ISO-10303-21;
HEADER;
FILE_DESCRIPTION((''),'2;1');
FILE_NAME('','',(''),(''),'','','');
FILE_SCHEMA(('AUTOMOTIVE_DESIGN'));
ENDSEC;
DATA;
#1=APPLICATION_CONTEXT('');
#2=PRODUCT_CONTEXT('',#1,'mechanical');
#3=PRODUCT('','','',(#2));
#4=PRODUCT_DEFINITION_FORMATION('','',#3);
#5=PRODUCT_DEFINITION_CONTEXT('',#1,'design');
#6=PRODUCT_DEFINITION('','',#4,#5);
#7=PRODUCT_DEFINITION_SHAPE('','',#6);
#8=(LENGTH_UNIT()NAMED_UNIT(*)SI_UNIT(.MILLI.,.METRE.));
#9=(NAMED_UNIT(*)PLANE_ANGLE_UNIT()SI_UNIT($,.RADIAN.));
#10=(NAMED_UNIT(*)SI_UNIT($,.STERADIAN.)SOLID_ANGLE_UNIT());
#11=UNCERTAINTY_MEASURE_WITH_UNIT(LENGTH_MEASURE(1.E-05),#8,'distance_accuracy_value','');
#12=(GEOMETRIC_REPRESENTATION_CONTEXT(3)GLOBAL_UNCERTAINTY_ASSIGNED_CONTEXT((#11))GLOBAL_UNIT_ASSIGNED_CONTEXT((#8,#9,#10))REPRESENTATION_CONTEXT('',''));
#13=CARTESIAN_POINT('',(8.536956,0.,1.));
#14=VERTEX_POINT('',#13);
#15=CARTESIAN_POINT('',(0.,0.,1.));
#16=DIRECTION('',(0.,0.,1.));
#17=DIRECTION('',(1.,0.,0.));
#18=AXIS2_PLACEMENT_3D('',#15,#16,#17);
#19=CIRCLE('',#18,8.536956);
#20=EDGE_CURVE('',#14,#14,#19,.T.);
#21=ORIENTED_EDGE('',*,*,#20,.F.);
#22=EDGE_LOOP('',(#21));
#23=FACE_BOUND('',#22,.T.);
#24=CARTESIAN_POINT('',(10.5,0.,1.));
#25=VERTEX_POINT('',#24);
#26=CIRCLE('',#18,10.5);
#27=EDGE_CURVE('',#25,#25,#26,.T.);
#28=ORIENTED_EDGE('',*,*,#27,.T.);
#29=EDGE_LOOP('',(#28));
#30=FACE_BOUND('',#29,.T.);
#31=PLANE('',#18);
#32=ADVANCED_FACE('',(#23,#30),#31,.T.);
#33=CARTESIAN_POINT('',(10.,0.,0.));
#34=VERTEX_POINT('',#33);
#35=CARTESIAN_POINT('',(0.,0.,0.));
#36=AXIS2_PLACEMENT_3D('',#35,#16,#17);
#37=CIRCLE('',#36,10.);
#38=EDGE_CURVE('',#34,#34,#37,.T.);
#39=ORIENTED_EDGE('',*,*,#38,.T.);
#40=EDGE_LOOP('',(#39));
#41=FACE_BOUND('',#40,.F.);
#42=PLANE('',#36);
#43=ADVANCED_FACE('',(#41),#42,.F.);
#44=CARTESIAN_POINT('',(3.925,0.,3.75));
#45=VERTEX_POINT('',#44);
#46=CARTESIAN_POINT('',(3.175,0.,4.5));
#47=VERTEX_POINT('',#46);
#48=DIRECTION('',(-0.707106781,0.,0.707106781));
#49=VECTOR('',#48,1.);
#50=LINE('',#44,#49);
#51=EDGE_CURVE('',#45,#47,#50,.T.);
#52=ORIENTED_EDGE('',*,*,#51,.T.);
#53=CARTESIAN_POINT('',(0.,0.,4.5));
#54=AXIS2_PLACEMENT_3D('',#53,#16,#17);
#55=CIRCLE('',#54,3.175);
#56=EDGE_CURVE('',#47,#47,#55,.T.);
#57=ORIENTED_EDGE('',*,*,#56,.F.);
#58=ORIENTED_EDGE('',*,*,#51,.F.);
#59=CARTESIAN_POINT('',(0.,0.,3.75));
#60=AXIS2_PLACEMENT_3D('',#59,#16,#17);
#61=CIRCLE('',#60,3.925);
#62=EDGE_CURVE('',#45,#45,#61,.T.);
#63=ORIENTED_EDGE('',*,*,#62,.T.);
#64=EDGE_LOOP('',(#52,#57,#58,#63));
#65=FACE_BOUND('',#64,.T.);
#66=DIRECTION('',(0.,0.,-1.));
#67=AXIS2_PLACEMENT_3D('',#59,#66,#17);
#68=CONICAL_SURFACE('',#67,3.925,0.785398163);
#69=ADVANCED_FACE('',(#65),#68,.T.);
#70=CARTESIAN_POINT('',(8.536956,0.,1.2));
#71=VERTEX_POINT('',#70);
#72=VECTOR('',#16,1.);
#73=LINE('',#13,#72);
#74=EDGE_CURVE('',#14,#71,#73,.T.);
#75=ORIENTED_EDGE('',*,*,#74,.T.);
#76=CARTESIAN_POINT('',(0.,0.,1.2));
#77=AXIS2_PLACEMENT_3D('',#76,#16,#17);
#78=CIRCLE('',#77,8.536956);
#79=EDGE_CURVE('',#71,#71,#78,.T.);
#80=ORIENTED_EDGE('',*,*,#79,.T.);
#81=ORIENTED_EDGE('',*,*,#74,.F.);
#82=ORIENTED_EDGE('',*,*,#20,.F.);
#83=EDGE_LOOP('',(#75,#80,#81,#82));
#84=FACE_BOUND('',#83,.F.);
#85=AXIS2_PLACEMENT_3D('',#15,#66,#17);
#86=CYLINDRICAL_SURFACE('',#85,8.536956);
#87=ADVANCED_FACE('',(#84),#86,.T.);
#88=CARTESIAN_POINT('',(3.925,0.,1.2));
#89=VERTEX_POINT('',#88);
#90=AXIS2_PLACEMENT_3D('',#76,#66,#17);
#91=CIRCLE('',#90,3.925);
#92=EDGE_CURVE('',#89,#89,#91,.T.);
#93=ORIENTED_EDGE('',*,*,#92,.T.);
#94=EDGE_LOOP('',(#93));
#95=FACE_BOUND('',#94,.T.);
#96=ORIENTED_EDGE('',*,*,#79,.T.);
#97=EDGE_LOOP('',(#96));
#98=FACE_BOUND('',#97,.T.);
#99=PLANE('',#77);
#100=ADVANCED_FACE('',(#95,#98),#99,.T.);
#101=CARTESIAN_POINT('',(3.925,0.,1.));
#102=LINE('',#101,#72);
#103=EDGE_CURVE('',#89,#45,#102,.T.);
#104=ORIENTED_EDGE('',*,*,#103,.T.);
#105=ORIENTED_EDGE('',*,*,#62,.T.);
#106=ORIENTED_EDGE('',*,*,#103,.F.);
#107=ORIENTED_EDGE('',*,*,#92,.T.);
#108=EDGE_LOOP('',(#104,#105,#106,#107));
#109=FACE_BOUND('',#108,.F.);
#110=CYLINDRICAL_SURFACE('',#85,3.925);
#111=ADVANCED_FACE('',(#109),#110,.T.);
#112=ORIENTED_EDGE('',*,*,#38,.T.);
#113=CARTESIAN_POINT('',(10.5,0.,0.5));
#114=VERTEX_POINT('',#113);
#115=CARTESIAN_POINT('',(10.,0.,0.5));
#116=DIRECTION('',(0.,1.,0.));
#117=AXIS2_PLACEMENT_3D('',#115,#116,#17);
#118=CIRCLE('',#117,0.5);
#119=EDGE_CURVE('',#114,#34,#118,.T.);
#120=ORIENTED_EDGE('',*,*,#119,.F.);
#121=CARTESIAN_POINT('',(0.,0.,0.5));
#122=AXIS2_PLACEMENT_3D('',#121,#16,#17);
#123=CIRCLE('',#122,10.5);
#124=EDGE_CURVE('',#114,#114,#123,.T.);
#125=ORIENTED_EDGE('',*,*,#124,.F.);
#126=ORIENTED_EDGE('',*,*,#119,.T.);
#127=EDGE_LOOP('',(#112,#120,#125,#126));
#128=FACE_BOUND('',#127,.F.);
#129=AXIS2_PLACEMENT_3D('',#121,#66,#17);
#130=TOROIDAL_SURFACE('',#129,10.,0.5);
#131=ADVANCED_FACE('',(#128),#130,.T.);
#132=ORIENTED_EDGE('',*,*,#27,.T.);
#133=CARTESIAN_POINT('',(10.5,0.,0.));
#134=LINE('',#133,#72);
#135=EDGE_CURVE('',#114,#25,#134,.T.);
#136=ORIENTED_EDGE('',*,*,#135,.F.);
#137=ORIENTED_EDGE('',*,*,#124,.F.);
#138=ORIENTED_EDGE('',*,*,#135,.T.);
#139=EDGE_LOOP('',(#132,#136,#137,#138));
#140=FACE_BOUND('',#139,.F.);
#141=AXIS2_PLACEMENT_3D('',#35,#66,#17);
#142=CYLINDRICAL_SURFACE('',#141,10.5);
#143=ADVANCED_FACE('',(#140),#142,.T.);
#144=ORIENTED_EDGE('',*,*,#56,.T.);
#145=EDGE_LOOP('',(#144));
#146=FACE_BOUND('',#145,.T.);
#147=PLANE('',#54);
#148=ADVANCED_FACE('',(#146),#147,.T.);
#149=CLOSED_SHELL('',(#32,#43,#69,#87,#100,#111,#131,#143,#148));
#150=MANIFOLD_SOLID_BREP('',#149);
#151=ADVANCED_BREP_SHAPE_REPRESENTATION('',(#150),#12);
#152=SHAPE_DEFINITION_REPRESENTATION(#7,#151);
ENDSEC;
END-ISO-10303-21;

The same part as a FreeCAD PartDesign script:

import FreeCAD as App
import Part
import Sketcher

V = App.Vector


def edges_at(feature, points):
    """Names of the edges that pass closest to the given points."""
    edges = feature.Shape.Edges
    near = lambda p: min(range(len(edges)), key=lambda i: edges[i].distToShape(Part.Vertex(*p))[0])
    return sorted({f"Edge{near(p) + 1}" for p in points})

doc = App.newDocument("Part")
body = doc.addObject("PartDesign::Body", "Body")

# Sketch on XY plane
sketch1 = doc.addObject("Sketcher::SketchObject", "Sketch")
body.addObject(sketch1)
sketch1.AttachmentSupport = (doc.XY_Plane, [""])
sketch1.MapMode = "FlatFace"
sketch1.addGeometry(Part.Circle(V(0, 0, 0), V(0, 0, 1), 10.5), False)
sketch1.addConstraint([
    Sketcher.Constraint("Coincident", 0, 3, -1, 1),
    Sketcher.Constraint("Diameter", 0, 21.0),
])
pad1 = doc.addObject("PartDesign::Pad", "Pad")
body.addObject(pad1)
pad1.Profile = sketch1
pad1.Length = 1

# Sketch on XY plane
sketch2 = doc.addObject("Sketcher::SketchObject", "Sketch001")
body.addObject(sketch2)
sketch2.AttachmentSupport = (doc.XY_Plane, [""])
sketch2.MapMode = "FlatFace"
sketch2.AttachmentOffset = App.Placement(V(0, 0, 1), App.Rotation())
sketch2.addGeometry(Part.Circle(V(0, 0, 0), V(0, 0, 1), 3.925), False)
sketch2.addConstraint([
    Sketcher.Constraint("Coincident", 0, 3, -1, 1),
    Sketcher.Constraint("Diameter", 0, 7.85),
])
pad2 = doc.addObject("PartDesign::Pad", "Pad001")
body.addObject(pad2)
pad2.Profile = sketch2
pad2.Length = 3.5
doc.recompute()

chamfer = doc.addObject("PartDesign::Chamfer", "Chamfer")
body.addObject(chamfer)
chamfer.Base = (pad2, edges_at(pad2, [(-3.925, 0, 4.5)]))
chamfer.Size = 0.75
doc.recompute()

fillet = doc.addObject("PartDesign::Fillet", "Fillet")
body.addObject(fillet)
fillet.Base = (chamfer, edges_at(chamfer, [(-10.5, 0, 0)]))
fillet.Radius = 0.5

# Sketch on XY plane
sketch3 = doc.addObject("Sketcher::SketchObject", "Sketch002")
body.addObject(sketch3)
sketch3.AttachmentSupport = (doc.XY_Plane, [""])
sketch3.MapMode = "FlatFace"
sketch3.AttachmentOffset = App.Placement(V(0, 0, 1), App.Rotation())
sketch3.addGeometry(Part.Circle(V(0, 0, 0), V(0, 0, 1), 8.536956), False)
sketch3.addConstraint([
    Sketcher.Constraint("Coincident", 0, 3, -1, 1),
    Sketcher.Constraint("Diameter", 0, 17.073912),
])
pad3 = doc.addObject("PartDesign::Pad", "Pad002")
body.addObject(pad3)
pad3.Profile = sketch3
pad3.Length = 0.2

doc.recompute()
